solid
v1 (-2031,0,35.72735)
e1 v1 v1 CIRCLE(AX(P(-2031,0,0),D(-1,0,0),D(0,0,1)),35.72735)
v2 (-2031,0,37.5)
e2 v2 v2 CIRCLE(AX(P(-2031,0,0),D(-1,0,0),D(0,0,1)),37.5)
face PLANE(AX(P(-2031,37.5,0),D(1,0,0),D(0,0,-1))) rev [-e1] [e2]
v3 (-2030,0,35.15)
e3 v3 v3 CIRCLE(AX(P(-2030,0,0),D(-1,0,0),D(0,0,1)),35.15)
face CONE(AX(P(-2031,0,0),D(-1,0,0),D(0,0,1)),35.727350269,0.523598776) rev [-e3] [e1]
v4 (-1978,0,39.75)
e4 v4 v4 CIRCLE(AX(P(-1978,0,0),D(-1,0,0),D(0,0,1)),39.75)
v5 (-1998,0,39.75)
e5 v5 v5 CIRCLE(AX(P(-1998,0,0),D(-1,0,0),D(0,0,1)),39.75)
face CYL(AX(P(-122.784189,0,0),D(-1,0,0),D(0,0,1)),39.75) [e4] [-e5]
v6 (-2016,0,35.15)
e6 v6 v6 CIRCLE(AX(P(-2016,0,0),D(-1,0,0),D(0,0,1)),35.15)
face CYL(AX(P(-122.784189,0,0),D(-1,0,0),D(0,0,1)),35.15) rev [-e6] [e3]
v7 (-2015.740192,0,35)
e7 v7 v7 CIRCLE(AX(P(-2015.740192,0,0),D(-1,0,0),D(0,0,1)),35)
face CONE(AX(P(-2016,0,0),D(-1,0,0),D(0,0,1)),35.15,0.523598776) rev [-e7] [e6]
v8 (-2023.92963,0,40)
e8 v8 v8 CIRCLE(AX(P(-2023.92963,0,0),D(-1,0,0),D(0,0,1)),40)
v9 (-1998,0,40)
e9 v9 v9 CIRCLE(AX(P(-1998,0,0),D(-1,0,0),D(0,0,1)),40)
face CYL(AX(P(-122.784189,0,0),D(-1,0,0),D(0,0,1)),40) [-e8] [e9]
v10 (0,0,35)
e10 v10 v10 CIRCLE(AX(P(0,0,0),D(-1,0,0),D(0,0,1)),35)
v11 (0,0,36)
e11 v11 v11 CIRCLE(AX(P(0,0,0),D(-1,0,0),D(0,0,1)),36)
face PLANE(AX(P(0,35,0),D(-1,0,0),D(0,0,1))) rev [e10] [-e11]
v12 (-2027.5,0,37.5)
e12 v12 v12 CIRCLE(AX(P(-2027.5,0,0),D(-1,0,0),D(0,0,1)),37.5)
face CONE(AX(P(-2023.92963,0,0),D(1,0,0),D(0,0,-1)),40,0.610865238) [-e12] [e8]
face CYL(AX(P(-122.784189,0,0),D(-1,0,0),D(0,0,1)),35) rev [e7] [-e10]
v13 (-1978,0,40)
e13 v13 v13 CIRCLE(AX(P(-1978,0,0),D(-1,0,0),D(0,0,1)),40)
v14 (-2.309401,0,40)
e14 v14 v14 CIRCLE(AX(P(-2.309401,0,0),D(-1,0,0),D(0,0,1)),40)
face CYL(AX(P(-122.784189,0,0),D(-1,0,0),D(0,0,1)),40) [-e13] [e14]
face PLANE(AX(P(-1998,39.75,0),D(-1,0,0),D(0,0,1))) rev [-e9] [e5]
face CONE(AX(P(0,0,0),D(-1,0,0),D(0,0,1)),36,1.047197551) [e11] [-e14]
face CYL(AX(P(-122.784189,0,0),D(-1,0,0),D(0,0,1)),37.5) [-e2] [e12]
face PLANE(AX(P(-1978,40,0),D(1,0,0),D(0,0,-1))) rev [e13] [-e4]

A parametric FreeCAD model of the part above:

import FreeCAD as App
import Part
import Sketcher
from FreeCAD import Vector
Q = App.Units.Quantity


def add_polygon(sketch, points):
    """Adds a closed chain of lines whose ends are joined by coincident constraints."""
    first, n = sketch.GeometryCount, len(points)
    for a, b in zip(points, points[1:] + points[:1]):
        sketch.addGeometry(Part.LineSegment(App.Vector(*a, 0), App.Vector(*b, 0)), False)
    for i in range(n):
        sketch.addConstraint(Sketcher.Constraint("Coincident", first + i, 2, first + (i + 1) % n, 1))

doc = App.newDocument("Part")
body = doc.addObject("PartDesign::Body", "Body")

sketch1 = doc.addObject("Sketcher::SketchObject", "Sketch")
body.addObject(sketch1)
sketch1.AttachmentSupport = (doc.XY_Plane, [""])
sketch1.MapMode = "FlatFace"
add_polygon(sketch1, [(0, 35), (0, 36), (-2.31, 40), (-1978, 40), (-1978, 39.75), (-1998, 39.75), (-1998, 40), (-2023.93, 40), (-2027.5, 37.5), (-2031, 37.5), (-2031, 35.73), (-2030, 35.15), (-2016, 35.15), (-2015.74, 35)])
sketch1.addConstraint(Sketcher.Constraint("Vertical", 0))
sketch1.addConstraint(Sketcher.Constraint("Horizontal", 2))
sketch1.addConstraint(Sketcher.Constraint("Vertical", 3))
sketch1.addConstraint(Sketcher.Constraint("Horizontal", 4))
sketch1.addConstraint(Sketcher.Constraint("Vertical", 5))
sketch1.addConstraint(Sketcher.Constraint("Horizontal", 6))
sketch1.addConstraint(Sketcher.Constraint("Horizontal", 8))
sketch1.addConstraint(Sketcher.Constraint("Vertical", 9))
sketch1.addConstraint(Sketcher.Constraint("Horizontal", 11))
sketch1.addConstraint(Sketcher.Constraint("Horizontal", 13))
sketch1.addConstraint(Sketcher.Constraint("PointOnObject", 0, 2, -2))
sketch1.addConstraint(Sketcher.Constraint("Parallel", 10, 12))
sketch1.addConstraint(Sketcher.Constraint("Horizontal", 2, 2, 5, 2))
sketch1.addConstraint(Sketcher.Constraint("DistanceX", 4, 2, 4, 1, Q("20 mm")))
sketch1.addConstraint(Sketcher.Constraint("DistanceX", 11, 1, 11, 2, Q("14 mm")))
sketch1.addConstraint(Sketcher.Constraint("DistanceY", 0, 1, 0, 2, Q("1 mm")))
sketch1.addConstraint(Sketcher.Constraint("Angle", 1, Q("120 deg")))
sketch1.addConstraint(Sketcher.Constraint("Angle", 7, Q("-145 deg")))
sketch1.addConstraint(Sketcher.Constraint("Angle", 10, Q("-30 deg")))
sketch1.addConstraint(Sketcher.Constraint("DistanceX", 8, 2, 8, 1, Q("3.5 mm")))
sketch1.addConstraint(Sketcher.Constraint("DistanceY", -1, 1, 0, 2, Q("36 mm")))
sketch1.addConstraint(Sketcher.Constraint("DistanceY", -1, 1, 1, 2, Q("40 mm")))
sketch1.addConstraint(Sketcher.Constraint("DistanceX", 2, 2, -1, 1, Q("1978 mm")))
sketch1.addConstraint(Sketcher.Constraint("DistanceX", 8, 2, -1, 1, Q("2031 mm")))
sketch1.addConstraint(Sketcher.Constraint("DistanceX", 10, 2, -1, 1, Q("2030 mm")))
sketch1.addConstraint(Sketcher.Constraint("Distance", 12, Q("0.3 mm")))
sketch1.addConstraint(Sketcher.Constraint("DistanceY", 3, 2, 3, 1, Q("0.25 mm")))
sketch1.addConstraint(Sketcher.Constraint("DistanceY", -1, 1, 7, 2, Q("37.5 mm")))
revolution = doc.addObject("PartDesign::Revolution", "Revolution")
body.addObject(revolution)
revolution.Profile = sketch1
revolution.ReferenceAxis = (sketch1, ["H_Axis"])
revolution.Angle = 360

doc.recompute()
